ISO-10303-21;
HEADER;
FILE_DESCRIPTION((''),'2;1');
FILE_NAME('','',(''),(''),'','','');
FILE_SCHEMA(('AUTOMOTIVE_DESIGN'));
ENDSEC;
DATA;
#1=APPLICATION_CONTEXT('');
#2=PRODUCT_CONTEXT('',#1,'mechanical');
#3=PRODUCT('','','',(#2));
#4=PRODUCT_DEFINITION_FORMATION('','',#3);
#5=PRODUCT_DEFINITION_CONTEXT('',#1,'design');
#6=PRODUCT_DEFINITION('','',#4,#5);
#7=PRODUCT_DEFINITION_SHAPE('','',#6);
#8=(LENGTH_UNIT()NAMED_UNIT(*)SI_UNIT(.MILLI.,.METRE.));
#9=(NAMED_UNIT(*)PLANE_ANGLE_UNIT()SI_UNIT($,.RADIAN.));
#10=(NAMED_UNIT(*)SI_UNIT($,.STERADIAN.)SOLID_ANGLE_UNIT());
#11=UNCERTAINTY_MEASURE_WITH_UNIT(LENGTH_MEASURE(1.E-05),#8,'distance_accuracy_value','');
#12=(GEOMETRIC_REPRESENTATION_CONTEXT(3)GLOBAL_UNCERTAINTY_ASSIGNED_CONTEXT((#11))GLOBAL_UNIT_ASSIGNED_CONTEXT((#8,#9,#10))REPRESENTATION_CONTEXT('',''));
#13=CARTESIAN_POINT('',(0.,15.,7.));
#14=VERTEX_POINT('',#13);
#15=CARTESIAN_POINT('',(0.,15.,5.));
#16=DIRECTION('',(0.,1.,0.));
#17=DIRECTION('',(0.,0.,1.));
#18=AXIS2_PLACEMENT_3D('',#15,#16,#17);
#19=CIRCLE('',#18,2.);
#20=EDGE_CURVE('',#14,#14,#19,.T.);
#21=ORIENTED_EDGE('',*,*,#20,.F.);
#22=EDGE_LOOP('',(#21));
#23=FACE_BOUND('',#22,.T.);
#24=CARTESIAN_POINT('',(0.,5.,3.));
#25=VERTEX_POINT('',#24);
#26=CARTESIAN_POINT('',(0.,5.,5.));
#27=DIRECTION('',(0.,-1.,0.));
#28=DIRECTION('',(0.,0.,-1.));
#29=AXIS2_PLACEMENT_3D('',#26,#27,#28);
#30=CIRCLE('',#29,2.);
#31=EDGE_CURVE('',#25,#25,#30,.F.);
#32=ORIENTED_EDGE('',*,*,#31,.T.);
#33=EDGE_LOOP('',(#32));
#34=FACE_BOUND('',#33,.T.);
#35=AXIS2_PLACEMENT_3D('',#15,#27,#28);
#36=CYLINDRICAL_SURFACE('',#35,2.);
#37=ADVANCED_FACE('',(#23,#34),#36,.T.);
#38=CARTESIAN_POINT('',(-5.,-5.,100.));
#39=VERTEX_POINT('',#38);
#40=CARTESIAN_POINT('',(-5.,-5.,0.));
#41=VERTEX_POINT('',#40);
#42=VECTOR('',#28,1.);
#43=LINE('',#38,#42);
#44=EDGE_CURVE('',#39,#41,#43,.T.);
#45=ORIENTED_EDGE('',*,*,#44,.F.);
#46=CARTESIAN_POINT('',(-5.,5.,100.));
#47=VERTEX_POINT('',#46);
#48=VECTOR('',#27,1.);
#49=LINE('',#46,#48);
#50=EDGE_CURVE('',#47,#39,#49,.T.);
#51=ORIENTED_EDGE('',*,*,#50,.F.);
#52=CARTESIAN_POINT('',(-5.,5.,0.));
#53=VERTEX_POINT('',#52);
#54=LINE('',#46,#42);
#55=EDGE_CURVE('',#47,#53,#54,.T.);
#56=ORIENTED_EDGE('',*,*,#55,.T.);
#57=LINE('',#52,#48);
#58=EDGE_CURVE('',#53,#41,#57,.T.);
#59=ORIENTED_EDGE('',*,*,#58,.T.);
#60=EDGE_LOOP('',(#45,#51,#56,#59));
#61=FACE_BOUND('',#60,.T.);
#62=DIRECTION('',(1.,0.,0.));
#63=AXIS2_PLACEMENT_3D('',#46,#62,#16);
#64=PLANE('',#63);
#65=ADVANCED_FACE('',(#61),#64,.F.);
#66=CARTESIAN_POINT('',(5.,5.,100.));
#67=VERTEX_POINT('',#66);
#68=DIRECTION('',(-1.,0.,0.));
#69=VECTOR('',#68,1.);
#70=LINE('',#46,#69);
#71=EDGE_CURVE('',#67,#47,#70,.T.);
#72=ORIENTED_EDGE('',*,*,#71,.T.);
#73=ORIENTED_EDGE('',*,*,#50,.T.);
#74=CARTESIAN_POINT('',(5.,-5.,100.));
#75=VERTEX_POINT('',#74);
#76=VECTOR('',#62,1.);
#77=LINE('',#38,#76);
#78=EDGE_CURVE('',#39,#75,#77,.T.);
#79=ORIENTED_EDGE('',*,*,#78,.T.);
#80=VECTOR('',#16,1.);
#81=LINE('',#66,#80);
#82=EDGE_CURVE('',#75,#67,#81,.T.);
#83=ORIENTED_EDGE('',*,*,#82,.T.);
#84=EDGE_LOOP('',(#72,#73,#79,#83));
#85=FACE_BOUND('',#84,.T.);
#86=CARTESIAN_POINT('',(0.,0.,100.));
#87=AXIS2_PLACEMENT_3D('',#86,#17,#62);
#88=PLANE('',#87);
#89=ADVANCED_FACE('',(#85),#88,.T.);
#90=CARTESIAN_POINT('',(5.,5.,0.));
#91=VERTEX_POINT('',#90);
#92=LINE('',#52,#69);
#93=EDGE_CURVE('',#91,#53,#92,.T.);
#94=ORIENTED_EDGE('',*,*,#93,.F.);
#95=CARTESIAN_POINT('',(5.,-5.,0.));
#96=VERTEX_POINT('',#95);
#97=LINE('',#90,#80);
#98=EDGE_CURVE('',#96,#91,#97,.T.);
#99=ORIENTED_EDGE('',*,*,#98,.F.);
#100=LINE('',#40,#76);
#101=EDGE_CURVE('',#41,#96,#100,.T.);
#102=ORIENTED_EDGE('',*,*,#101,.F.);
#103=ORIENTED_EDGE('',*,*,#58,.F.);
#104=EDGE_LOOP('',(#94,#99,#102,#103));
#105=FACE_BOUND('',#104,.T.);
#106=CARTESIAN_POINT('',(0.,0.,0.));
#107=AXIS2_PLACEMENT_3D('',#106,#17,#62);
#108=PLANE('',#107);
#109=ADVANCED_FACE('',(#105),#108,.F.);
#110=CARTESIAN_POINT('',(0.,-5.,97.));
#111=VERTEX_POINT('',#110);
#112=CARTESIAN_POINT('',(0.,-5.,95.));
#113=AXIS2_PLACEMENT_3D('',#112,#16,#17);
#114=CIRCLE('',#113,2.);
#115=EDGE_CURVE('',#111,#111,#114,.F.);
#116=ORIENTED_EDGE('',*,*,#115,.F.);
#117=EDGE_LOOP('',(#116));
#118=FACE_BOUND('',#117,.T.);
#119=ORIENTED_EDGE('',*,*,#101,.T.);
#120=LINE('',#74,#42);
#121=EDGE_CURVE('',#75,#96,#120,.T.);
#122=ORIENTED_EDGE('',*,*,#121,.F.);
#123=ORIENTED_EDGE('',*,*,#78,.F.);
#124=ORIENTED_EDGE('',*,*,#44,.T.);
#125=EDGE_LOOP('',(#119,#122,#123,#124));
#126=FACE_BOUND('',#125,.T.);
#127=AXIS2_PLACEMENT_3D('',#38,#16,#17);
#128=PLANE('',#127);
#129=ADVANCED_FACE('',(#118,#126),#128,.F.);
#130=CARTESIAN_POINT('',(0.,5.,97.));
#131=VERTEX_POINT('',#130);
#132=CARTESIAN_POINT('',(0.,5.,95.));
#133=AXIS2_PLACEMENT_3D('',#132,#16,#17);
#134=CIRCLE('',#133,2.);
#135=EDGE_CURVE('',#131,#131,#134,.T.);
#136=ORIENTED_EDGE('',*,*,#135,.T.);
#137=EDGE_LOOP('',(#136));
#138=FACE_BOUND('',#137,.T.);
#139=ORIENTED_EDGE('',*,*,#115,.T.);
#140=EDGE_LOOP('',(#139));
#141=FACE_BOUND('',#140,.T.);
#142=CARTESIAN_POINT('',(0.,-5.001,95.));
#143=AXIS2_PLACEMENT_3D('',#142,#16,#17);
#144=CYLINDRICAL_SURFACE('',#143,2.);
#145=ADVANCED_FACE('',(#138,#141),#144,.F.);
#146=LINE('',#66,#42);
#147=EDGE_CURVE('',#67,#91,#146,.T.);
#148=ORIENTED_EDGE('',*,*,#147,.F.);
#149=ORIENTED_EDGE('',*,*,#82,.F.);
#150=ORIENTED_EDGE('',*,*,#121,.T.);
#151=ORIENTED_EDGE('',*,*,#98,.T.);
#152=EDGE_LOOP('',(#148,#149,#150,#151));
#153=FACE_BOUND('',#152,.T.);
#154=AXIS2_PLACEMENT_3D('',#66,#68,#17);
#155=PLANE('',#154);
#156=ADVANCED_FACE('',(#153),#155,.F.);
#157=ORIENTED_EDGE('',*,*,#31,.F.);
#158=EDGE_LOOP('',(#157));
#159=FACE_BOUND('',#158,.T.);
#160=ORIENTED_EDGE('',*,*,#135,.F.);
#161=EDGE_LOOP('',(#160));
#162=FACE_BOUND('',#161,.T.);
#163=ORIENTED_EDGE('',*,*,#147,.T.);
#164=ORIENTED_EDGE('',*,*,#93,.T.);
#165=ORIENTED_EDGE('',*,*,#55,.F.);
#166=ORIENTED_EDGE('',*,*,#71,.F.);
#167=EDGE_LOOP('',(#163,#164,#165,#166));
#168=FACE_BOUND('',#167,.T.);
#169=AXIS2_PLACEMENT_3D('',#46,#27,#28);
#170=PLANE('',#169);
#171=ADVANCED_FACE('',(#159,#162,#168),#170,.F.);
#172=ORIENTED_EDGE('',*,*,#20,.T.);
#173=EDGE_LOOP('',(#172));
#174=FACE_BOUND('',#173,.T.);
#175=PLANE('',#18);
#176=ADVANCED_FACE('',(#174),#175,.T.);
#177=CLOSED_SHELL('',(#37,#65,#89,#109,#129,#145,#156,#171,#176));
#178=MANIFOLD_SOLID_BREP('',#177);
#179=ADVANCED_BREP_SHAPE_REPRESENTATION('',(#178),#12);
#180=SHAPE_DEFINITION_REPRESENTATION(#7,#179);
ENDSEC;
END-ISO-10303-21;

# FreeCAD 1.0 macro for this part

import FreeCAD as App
import Part
import Sketcher

V = App.Vector

doc = App.newDocument("Part")
body = doc.addObject("PartDesign::Body", "Body")

sketch1 = body.newObject("Sketcher::SketchObject", "Sketch")
sketch1.AttachmentSupport = (doc.getObject("XY_Plane"), [""])
sketch1.MapMode = "FlatFace"
sketch1.addGeometry([
    Part.LineSegment(V(-5, 5, 0), V(-5, -5, 0)),
    Part.LineSegment(V(-5, -5, 0), V(5, -5, 0)),
    Part.LineSegment(V(5, -5, 0), V(5, 5, 0)),
    Part.LineSegment(V(5, 5, 0), V(-5, 5, 0)),
], False)
sketch1.addConstraint([
    Sketcher.Constraint("Coincident", 0, 2, 1, 1),
    Sketcher.Constraint("Coincident", 1, 2, 2, 1),
    Sketcher.Constraint("Coincident", 2, 2, 3, 1),
    Sketcher.Constraint("Coincident", 3, 2, 0, 1),
    Sketcher.Constraint("Vertical", 0),
    Sketcher.Constraint("Horizontal", 1),
    Sketcher.Constraint("Vertical", 2),
    Sketcher.Constraint("Horizontal", 3),
    Sketcher.Constraint("Symmetric", 0, 2, 2, 2, -1, 1),
    Sketcher.Constraint("Equal", 3, 0),
    Sketcher.Constraint("DistanceX", 1, 1, 1, 2, 10.0),
])
pad1 = body.newObject("PartDesign::Pad", "Pad")
pad1.Profile = sketch1
pad1.Length = 100

sketch2 = body.newObject("Sketcher::SketchObject", "Sketch001")
sketch2.AttachmentSupport = (doc.getObject("XZ_Plane"), [""])
sketch2.MapMode = "FlatFace"
sketch2.AttachmentOffset = App.Placement(V(0, 0, -5), App.Rotation())
sketch2.addGeometry(Part.Circle(V(0, 95, 0), V(0, 0, 1), 2), False)
sketch2.addConstraint([
    Sketcher.Constraint("PointOnObject", 0, 3, -2),
    Sketcher.Constraint("Diameter", 0, 4.0),
    Sketcher.Constraint("DistanceY", -1, 1, 0, 3, 95.0),
])
pocket1 = body.newObject("PartDesign::Pocket", "Pocket")
pocket1.Profile = sketch2
pocket1.Type = "UpToFirst"
pocket1.Reversed = True

sketch3 = body.newObject("Sketcher::SketchObject", "Sketch002")
sketch3.AttachmentSupport = (doc.getObject("XZ_Plane"), [""])
sketch3.MapMode = "FlatFace"
sketch3.AttachmentOffset = App.Placement(V(0, 0, -5), App.Rotation())
sketch3.addGeometry(Part.Circle(V(0, 5, 0), V(0, 0, 1), 2), False)
sketch3.addConstraint([
    Sketcher.Constraint("PointOnObject", 0, 3, -2),
    Sketcher.Constraint("Diameter", 0, 4.0),
    Sketcher.Constraint("DistanceY", -1, 1, 0, 3, 5.0),
])
pad2 = body.newObject("PartDesign::Pad", "Pad001")
pad2.Profile = sketch3
pad2.Length = 10
pad2.Reversed = True

doc.recompute()
